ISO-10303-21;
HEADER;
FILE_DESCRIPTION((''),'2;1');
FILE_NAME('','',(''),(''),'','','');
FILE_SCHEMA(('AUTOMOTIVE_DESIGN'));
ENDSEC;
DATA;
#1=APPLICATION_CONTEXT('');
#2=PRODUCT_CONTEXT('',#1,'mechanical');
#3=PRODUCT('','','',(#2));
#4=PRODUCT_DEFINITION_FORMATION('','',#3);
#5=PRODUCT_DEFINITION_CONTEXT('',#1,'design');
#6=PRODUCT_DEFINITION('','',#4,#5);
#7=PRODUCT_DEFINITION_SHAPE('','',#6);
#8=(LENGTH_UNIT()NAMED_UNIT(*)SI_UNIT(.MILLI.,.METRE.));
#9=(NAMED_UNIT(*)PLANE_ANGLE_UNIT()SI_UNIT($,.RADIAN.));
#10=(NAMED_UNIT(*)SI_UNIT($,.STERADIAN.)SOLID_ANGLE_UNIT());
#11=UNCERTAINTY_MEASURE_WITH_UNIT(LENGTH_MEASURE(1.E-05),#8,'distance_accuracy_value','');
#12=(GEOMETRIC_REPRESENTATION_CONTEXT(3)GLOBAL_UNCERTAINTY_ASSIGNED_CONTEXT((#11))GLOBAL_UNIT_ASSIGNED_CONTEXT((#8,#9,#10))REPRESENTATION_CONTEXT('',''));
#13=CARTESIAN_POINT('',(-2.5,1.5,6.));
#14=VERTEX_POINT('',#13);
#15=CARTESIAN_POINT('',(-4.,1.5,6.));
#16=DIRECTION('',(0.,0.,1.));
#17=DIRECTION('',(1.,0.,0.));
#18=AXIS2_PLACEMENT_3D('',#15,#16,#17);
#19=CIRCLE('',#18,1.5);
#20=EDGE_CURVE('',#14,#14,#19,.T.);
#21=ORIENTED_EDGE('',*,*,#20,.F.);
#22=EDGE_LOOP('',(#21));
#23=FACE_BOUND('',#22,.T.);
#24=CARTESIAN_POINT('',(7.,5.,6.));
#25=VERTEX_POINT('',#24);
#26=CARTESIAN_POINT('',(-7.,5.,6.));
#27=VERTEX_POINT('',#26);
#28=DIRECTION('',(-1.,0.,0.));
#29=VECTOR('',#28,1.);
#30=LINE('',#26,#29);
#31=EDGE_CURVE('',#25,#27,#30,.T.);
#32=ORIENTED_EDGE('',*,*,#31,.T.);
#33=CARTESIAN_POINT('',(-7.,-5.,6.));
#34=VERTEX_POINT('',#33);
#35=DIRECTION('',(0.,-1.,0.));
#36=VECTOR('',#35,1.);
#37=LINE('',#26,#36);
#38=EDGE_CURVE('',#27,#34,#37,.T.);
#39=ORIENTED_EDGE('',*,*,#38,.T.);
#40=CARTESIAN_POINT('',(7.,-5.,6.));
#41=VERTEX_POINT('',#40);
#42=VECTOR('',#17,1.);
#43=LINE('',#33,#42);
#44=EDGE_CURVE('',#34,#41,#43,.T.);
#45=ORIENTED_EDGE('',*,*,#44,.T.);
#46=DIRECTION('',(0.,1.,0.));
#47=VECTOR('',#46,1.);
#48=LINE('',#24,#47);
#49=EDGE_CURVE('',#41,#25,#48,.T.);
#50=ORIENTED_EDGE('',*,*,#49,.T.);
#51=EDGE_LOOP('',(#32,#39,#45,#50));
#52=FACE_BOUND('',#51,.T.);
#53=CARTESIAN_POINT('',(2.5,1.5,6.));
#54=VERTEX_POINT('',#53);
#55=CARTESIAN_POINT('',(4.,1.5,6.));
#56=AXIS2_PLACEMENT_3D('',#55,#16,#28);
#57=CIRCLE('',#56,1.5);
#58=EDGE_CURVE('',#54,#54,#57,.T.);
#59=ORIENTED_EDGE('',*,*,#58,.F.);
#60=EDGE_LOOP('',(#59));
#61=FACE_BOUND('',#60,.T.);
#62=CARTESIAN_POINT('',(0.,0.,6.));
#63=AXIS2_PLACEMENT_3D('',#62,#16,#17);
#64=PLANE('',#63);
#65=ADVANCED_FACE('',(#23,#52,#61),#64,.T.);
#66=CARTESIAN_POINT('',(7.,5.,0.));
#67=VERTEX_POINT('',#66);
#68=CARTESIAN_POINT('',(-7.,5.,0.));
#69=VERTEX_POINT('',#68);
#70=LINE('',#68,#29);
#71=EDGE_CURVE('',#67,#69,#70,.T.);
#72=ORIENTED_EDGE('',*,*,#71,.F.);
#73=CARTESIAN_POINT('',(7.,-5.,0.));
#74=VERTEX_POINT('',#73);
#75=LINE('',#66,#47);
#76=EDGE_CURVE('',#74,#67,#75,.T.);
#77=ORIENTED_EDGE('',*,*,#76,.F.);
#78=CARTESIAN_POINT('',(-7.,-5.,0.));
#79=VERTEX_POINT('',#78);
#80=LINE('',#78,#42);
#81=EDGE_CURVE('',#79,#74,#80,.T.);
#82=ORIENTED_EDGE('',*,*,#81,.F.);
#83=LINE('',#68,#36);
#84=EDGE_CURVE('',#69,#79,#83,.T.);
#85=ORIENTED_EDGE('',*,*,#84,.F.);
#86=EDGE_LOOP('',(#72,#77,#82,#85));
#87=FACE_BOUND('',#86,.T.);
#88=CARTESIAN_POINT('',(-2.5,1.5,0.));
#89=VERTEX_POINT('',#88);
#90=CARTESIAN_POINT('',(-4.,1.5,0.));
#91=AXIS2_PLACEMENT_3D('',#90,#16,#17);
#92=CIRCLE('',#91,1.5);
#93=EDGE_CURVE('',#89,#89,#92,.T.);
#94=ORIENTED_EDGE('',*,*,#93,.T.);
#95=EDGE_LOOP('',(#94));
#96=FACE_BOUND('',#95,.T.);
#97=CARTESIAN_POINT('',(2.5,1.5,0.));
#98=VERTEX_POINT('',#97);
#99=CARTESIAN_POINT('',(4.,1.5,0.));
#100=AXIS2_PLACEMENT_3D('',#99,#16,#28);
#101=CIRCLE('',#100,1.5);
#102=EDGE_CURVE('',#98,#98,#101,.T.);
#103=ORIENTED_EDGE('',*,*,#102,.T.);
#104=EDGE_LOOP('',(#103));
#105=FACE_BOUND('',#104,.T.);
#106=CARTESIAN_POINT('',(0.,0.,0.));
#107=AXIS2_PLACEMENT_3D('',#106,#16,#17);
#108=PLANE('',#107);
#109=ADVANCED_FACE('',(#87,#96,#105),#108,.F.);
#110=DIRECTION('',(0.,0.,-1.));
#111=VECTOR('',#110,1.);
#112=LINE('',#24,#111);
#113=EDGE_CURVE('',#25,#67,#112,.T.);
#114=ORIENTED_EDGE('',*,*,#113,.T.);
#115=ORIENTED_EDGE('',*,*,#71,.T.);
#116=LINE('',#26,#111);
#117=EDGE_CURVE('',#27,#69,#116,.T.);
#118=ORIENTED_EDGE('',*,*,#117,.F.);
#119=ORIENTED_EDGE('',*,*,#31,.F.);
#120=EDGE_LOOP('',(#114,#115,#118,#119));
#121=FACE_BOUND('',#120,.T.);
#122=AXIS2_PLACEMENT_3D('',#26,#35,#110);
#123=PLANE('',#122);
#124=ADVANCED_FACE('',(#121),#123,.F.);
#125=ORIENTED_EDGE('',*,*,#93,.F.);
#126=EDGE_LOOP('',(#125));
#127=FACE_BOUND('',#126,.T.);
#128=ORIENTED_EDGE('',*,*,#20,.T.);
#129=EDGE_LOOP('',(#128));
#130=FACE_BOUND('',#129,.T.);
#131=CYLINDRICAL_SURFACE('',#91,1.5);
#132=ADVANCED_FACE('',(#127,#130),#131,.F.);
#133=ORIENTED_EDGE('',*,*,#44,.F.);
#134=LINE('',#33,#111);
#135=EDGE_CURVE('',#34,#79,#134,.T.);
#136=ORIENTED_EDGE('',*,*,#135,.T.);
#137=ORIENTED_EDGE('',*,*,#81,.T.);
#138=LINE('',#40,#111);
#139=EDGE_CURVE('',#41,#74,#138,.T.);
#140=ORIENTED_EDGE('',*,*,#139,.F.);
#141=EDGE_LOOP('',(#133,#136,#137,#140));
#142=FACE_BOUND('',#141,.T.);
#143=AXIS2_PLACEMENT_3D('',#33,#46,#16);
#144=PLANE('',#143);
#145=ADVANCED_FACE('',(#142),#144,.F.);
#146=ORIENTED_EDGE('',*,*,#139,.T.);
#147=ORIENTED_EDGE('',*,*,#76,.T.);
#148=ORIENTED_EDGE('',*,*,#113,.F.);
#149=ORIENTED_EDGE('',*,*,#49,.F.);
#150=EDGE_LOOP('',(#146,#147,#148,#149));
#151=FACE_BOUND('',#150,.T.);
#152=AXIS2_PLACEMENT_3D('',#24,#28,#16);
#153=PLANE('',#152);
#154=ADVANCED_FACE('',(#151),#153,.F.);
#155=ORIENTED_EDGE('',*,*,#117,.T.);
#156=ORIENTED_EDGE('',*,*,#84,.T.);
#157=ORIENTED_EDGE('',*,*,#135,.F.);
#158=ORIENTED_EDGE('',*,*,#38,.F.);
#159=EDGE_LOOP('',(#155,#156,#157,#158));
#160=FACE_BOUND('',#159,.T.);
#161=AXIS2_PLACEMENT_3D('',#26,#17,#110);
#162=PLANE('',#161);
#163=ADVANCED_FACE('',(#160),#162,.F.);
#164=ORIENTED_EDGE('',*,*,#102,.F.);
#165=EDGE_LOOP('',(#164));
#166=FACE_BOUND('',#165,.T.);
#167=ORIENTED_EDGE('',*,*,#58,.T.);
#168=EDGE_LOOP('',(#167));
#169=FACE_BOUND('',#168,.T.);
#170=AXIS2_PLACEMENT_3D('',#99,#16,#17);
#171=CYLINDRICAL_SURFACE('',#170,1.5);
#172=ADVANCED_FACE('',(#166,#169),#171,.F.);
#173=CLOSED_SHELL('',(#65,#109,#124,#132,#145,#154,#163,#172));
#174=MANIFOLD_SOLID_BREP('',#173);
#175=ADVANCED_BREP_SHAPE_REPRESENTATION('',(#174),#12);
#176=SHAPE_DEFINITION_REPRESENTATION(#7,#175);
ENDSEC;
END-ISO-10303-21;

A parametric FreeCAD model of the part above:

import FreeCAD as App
import Part
import Sketcher

doc = App.newDocument("Part")
params = doc.addObject("Spreadsheet::Sheet", "Params")
for row, (alias, value) in enumerate([
    ("sketch1_width", "14 mm"),
    ("sketch1_height", "10 mm"),
    ("pad1_length", "6 mm"),
    ("sketch2_diameter", "3 mm"),
], start=1):
    params.set(f"A{row}", alias)
    params.set(f"B{row}", "=" + value)
    params.setAlias(f"B{row}", alias)

body = doc.addObject("PartDesign::Body", "Body")

sketch1 = doc.addObject("Sketcher::SketchObject", "Sketch")
body.addObject(sketch1)
sketch1.AttachmentSupport = (doc.XY_Plane, [""])
sketch1.MapMode = "FlatFace"
sketch1.addGeometry([
    Part.LineSegment(App.Vector(-7, 5, 0), App.Vector(-7, -5, 0)),
    Part.LineSegment(App.Vector(-7, -5, 0), App.Vector(7, -5, 0)),
    Part.LineSegment(App.Vector(7, -5, 0), App.Vector(7, 5, 0)),
    Part.LineSegment(App.Vector(7, 5, 0), App.Vector(-7, 5, 0)),
], False)
sketch1.addConstraint([
    Sketcher.Constraint("Coincident", 0, 2, 1, 1),
    Sketcher.Constraint("Coincident", 1, 2, 2, 1),
    Sketcher.Constraint("Coincident", 2, 2, 3, 1),
    Sketcher.Constraint("Coincident", 3, 2, 0, 1),
    Sketcher.Constraint("Vertical", 0),
    Sketcher.Constraint("Horizontal", 1),
    Sketcher.Constraint("Vertical", 2),
    Sketcher.Constraint("Horizontal", 3),
    Sketcher.Constraint("Symmetric", 0, 2, 2, 2, -1, 1),
    Sketcher.Constraint("DistanceX", 1, 1, 1, 2, 14.0),
    Sketcher.Constraint("DistanceY", 0, 2, 0, 1, 10.0),
])
sketch1.setExpression("Constraints[9]", "Params.sketch1_width")
sketch1.setExpression("Constraints[10]", "Params.sketch1_height")
pad1 = doc.addObject("PartDesign::Pad", "Pad")
body.addObject(pad1)
pad1.Profile = sketch1
pad1.setExpression("Length", "Params.pad1_length")

sketch2 = doc.addObject("Sketcher::SketchObject", "Sketch001")
body.addObject(sketch2)
sketch2.AttachmentSupport = (doc.XY_Plane, [""])
sketch2.MapMode = "FlatFace"
sketch2.AttachmentOffset = App.Placement(App.Vector(0, 0, 6), App.Rotation())
sketch2.addGeometry([
    Part.Circle(App.Vector(-4, 1.5, 0), App.Vector(0, 0, 1), 1.5),
    Part.Circle(App.Vector(4, 1.5, 0), App.Vector(0, 0, 1), 1.5),
], False)
sketch2.addConstraint([
    Sketcher.Constraint("Equal", 0, 1),
    Sketcher.Constraint("Symmetric", 0, 3, 1, 3, -2),
    Sketcher.Constraint("Diameter", 0, 3.0),
    Sketcher.Constraint("DistanceX", 0, 3, -1, 1, 4.0),
    Sketcher.Constraint("DistanceY", -1, 1, 0, 3, 1.5),
])
sketch2.setExpression("Constraints[2]", "Params.sketch2_diameter")
pocket1 = doc.addObject("PartDesign::Pocket", "Pocket")
body.addObject(pocket1)
pocket1.Profile = sketch2
pocket1.Type = "ThroughAll"

doc.recompute()
